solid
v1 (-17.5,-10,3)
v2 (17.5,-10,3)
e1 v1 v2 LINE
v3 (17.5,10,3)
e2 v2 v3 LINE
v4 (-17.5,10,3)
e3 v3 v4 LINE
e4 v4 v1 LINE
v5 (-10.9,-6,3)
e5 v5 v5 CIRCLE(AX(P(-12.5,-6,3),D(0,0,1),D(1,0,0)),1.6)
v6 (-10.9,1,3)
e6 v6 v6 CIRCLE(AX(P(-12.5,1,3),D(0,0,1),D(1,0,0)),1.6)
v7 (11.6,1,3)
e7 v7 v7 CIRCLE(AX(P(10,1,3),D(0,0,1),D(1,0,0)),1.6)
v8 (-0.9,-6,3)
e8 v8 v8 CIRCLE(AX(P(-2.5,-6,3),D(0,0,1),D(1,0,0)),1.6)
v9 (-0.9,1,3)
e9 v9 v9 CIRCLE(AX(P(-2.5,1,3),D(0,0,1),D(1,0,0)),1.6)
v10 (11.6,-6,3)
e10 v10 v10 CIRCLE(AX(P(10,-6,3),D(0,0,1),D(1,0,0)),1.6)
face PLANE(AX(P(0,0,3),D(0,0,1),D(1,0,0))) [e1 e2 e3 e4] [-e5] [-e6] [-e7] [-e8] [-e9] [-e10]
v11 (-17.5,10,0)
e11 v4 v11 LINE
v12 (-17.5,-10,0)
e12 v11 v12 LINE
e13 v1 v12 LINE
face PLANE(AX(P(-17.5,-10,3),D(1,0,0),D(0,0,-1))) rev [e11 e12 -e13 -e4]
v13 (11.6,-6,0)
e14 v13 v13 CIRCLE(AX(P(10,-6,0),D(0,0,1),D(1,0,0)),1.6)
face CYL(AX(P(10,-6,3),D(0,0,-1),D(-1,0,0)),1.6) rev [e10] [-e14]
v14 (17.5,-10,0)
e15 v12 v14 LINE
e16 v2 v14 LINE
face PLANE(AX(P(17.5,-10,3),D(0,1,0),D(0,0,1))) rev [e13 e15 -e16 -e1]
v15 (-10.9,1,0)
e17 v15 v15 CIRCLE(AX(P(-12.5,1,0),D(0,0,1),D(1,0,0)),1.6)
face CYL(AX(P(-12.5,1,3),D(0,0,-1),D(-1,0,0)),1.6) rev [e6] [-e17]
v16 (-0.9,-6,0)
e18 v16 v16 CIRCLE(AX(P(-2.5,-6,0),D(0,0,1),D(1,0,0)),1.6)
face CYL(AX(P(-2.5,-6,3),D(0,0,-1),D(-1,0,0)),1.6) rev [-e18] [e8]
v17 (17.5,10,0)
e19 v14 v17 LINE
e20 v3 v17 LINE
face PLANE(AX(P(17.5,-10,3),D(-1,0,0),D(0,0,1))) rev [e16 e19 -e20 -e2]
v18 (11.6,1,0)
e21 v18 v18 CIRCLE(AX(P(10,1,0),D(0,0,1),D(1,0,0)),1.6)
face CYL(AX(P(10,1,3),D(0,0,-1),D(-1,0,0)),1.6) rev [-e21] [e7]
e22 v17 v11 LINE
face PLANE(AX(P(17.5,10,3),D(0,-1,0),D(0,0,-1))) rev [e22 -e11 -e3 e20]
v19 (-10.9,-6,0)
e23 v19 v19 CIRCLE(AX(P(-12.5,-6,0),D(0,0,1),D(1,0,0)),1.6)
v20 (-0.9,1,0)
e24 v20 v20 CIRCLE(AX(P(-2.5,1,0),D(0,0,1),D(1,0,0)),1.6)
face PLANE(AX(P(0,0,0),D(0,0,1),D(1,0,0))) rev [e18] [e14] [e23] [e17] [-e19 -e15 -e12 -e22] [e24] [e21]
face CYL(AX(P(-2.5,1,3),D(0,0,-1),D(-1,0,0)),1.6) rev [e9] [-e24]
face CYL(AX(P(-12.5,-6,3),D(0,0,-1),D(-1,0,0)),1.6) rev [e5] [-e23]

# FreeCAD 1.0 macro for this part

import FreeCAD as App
import Part
import Sketcher

V = App.Vector
Q = App.Units.Quantity

doc = App.newDocument("Part")
body = doc.addObject("PartDesign::Body", "Body")

# Sketch on XY plane
sketch1 = doc.addObject("Sketcher::SketchObject", "Sketch")
body.addObject(sketch1)
sketch1.AttachmentSupport = (doc.XY_Plane, [""])
sketch1.MapMode = "FlatFace"
sketch1.addGeometry([
    Part.LineSegment(V(-17.5, 10, 0), V(-17.5, -10, 0)),  # 0
    Part.LineSegment(V(-17.5, -10, 0), V(17.5, -10, 0)),  # 1
    Part.LineSegment(V(17.5, -10, 0), V(17.5, 10, 0)),  # 2
    Part.LineSegment(V(17.5, 10, 0), V(-17.5, 10, 0)),  # 3
    Part.Circle(V(-12.5, -6, 0), V(0, 0, 1), 1.6),  # 4
    Part.Circle(V(-2.5, -6, 0), V(0, 0, 1), 1.6),  # 5
    Part.Circle(V(10, -6, 0), V(0, 0, 1), 1.6),  # 6
    Part.Circle(V(-12.5, 1, 0), V(0, 0, 1), 1.6),  # 7
    Part.Circle(V(-2.5, 1, 0), V(0, 0, 1), 1.6),  # 8
    Part.Circle(V(10, 1, 0), V(0, 0, 1), 1.6),  # 9
], False)
sketch1.addConstraint([
    Sketcher.Constraint("Coincident", 0, 2, 1, 1),
    Sketcher.Constraint("Coincident", 1, 2, 2, 1),
    Sketcher.Constraint("Coincident", 2, 2, 3, 1),
    Sketcher.Constraint("Coincident", 3, 2, 0, 1),
    Sketcher.Constraint("Vertical", 0),
    Sketcher.Constraint("Horizontal", 1),
    Sketcher.Constraint("Vertical", 2),
    Sketcher.Constraint("Horizontal", 3),
    Sketcher.Constraint("Equal", 4, 5),
    Sketcher.Constraint("Equal", 5, 6),
    Sketcher.Constraint("Equal", 6, 7),
    Sketcher.Constraint("Equal", 7, 8),
    Sketcher.Constraint("Equal", 8, 9),
    Sketcher.Constraint("Symmetric", 0, 2, 2, 2, -1, 1),
    Sketcher.Constraint("Horizontal", 4, 3, 5, 3),
    Sketcher.Constraint("Horizontal", 5, 3, 6, 3),
    Sketcher.Constraint("Horizontal", 7, 3, 8, 3),
    Sketcher.Constraint("Horizontal", 8, 3, 9, 3),
    Sketcher.Constraint("Vertical", 4, 3, 7, 3),
    Sketcher.Constraint("Vertical", 5, 3, 8, 3),
    Sketcher.Constraint("Vertical", 6, 3, 9, 3),
    Sketcher.Constraint("Diameter", 4, Q("3.2 mm")),
    Sketcher.Constraint("DistanceX", 1, 1, 1, 2, Q("35 mm")),
    Sketcher.Constraint("DistanceY", 0, 2, 0, 1, Q("20 mm")),
    Sketcher.Constraint("DistanceY", 4, 3, -1, 1, Q("6 mm")),
    Sketcher.Constraint("DistanceX", -1, 1, 6, 3, Q("10 mm")),
    Sketcher.Constraint("DistanceY", -1, 1, 7, 3, Q("1 mm")),
    Sketcher.Constraint("DistanceX", 4, 3, 5, 3, Q("10 mm")),
    Sketcher.Constraint("DistanceX", 0, 2, 4, 3, Q("5 mm")),
])
pad1 = doc.addObject("PartDesign::Pad", "Pad")
body.addObject(pad1)
pad1.Profile = sketch1
pad1.Length = 3

doc.recompute()
